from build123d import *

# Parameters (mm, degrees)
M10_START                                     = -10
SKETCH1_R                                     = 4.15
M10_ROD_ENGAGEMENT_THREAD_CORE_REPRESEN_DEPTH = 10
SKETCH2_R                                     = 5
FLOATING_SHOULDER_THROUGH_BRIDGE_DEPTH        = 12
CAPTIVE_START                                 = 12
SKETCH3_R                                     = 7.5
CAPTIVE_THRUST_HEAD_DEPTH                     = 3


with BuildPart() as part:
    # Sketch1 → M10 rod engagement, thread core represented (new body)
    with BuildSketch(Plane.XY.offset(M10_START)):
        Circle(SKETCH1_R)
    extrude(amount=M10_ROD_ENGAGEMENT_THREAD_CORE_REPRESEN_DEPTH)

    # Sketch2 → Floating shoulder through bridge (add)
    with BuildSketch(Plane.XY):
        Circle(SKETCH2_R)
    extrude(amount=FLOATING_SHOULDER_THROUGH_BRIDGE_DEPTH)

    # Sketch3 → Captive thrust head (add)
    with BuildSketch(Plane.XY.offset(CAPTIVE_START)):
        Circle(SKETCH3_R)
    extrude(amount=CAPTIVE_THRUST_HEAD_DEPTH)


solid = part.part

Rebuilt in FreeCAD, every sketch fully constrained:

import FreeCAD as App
import Part
import Sketcher
from FreeCAD import Vector

doc = App.newDocument("Part")
params = doc.addObject("Spreadsheet::Sheet", "Params")
for row, (alias, value) in enumerate([
    ("sketch1_diameter", "8.3 mm"),
    ("pad1_length", "10 mm"),
    ("sketch2_diameter", "10 mm"),
    ("pad2_length", "12 mm"),
    ("sketch3_diameter", "15 mm"),
    ("pad3_length", "3 mm"),
], start=1):
    params.set(f"A{row}", alias)
    params.set(f"B{row}", "=" + value)
    params.setAlias(f"B{row}", alias)

body = doc.addObject("PartDesign::Body", "Body")

sketch1 = body.newObject("Sketcher::SketchObject", "Sketch")
sketch1.AttachmentSupport = (doc.getObject("XY_Plane"), [""])
sketch1.MapMode = "FlatFace"
sketch1.AttachmentOffset = App.Placement(Vector(0, 0, -10), App.Rotation())
sketch1.addGeometry(Part.Circle(Vector(0, 0, 0), Vector(0, 0, 1), 4.2), False)
sketch1.addConstraint([
    Sketcher.Constraint("Coincident", 0, 3, -1, 1),
    Sketcher.Constraint("Diameter", 0, 8.3),
])
sketch1.setExpression("Constraints[1]", "Params.sketch1_diameter")
pad1 = body.newObject("PartDesign::Pad", "Pad")
pad1.Profile = sketch1
pad1.setExpression("Length", "Params.pad1_length")

sketch2 = body.newObject("Sketcher::SketchObject", "Sketch001")
sketch2.AttachmentSupport = (doc.getObject("XY_Plane"), [""])
sketch2.MapMode = "FlatFace"
sketch2.addGeometry(Part.Circle(Vector(0, 0, 0), Vector(0, 0, 1), 5), False)
sketch2.addConstraint([
    Sketcher.Constraint("Coincident", 0, 3, -1, 1),
    Sketcher.Constraint("Diameter", 0, 10.0),
])
sketch2.setExpression("Constraints[1]", "Params.sketch2_diameter")
pad2 = body.newObject("PartDesign::Pad", "Pad001")
pad2.Profile = sketch2
pad2.setExpression("Length", "Params.pad2_length")

sketch3 = body.newObject("Sketcher::SketchObject", "Sketch002")
sketch3.AttachmentSupport = (doc.getObject("XY_Plane"), [""])
sketch3.MapMode = "FlatFace"
sketch3.AttachmentOffset = App.Placement(Vector(0, 0, 12), App.Rotation())
sketch3.addGeometry(Part.Circle(Vector(0, 0, 0), Vector(0, 0, 1), 8), False)
sketch3.addConstraint([
    Sketcher.Constraint("Coincident", 0, 3, -1, 1),
    Sketcher.Constraint("Diameter", 0, 15.0),
])
sketch3.setExpression("Constraints[1]", "Params.sketch3_diameter")
pad3 = body.newObject("PartDesign::Pad", "Pad002")
pad3.Profile = sketch3
pad3.setExpression("Length", "Params.pad3_length")

doc.recompute()
